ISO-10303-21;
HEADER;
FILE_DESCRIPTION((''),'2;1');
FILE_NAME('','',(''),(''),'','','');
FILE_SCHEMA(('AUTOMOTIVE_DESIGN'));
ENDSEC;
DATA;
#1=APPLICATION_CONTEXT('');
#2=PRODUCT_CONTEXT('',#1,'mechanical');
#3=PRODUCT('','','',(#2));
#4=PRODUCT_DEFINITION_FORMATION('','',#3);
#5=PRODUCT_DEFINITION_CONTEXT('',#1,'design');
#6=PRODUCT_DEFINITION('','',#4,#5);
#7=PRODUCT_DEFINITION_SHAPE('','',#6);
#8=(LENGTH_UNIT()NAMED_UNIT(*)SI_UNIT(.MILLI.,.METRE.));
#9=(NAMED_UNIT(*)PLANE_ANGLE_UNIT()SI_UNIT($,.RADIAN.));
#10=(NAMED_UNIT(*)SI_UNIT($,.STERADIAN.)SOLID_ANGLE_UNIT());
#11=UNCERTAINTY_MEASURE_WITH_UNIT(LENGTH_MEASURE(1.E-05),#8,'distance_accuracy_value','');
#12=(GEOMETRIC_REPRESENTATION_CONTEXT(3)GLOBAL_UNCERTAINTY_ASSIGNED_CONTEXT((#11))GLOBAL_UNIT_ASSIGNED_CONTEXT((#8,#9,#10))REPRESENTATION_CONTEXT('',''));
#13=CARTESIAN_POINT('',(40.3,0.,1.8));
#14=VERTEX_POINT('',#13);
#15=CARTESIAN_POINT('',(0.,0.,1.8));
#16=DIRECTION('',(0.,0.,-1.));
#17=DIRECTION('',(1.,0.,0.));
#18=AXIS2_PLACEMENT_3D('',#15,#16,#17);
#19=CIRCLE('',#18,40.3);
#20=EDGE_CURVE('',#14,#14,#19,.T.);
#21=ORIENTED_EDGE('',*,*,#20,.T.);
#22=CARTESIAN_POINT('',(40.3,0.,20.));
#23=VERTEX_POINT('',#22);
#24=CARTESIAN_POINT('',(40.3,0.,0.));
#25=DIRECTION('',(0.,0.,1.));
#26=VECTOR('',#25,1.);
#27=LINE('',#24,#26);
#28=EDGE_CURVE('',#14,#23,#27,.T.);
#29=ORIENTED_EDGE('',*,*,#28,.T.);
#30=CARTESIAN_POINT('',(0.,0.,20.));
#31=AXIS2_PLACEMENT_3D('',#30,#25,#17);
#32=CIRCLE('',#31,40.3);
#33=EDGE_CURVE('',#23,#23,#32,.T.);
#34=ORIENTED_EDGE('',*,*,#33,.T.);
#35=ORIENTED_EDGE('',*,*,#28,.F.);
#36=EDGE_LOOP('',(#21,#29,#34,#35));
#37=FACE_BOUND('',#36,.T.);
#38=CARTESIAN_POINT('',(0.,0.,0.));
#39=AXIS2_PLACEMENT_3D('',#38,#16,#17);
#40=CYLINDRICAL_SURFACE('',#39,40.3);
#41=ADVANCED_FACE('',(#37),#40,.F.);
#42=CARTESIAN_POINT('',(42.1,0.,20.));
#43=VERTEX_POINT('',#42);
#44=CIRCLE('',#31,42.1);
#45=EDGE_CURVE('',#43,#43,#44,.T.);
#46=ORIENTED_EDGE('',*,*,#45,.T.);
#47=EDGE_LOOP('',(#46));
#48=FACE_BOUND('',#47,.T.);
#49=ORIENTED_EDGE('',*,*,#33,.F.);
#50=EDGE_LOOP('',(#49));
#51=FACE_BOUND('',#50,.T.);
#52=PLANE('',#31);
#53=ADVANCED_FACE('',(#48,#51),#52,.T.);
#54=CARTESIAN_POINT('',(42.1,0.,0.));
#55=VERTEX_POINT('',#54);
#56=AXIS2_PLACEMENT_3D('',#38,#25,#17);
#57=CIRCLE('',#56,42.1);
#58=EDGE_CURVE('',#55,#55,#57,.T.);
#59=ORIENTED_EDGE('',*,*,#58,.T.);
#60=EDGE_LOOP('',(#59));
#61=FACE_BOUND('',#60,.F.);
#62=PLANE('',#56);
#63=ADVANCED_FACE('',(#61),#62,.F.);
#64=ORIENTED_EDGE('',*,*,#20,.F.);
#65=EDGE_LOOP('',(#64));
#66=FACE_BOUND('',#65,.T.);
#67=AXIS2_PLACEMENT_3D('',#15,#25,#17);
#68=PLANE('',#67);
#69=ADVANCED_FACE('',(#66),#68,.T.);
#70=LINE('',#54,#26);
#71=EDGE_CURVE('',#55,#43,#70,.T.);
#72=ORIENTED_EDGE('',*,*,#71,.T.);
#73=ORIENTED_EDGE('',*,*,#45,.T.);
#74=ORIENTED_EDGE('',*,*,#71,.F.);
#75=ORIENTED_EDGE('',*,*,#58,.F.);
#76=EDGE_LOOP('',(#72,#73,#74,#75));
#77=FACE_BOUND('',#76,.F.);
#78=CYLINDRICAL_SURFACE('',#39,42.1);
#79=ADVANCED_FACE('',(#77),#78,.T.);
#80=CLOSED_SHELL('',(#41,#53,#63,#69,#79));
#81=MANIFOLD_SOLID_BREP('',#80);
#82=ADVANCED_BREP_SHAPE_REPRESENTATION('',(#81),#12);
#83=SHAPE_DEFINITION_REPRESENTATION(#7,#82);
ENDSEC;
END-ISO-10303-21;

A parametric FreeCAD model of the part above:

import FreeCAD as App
import Part
import Sketcher
from FreeCAD import Vector
Q = App.Units.Quantity


def faces_at(feature, points):
    """Names of the faces that lie closest to the given points."""
    faces = feature.Shape.Faces
    near = lambda p: min(range(len(faces)), key=lambda i: faces[i].distToShape(Part.Vertex(*p))[0])
    return sorted({f"Face{near(p) + 1}" for p in points})

doc = App.newDocument("Part")
body = doc.addObject("PartDesign::Body", "Body")

# Sketch on XY plane
sketch1 = doc.addObject("Sketcher::SketchObject", "Sketch")
body.addObject(sketch1)
sketch1.AttachmentSupport = (doc.XY_Plane, [""])
sketch1.MapMode = "FlatFace"
sketch1.addGeometry(Part.Circle(Vector(0, 0, 0), Vector(0, 0, 1), 42.1), False)
sketch1.addConstraint([
    Sketcher.Constraint("Coincident", 0, 3, -1, 1),
    Sketcher.Constraint("Diameter", 0, Q("84.2 mm")),
])
pad1 = doc.addObject("PartDesign::Pad", "Pad")
body.addObject(pad1)
pad1.Profile = sketch1
pad1.Length = 20
doc.recompute()

thickness = doc.addObject("PartDesign::Thickness", "Thickness")
body.addObject(thickness)
thickness.Base = (pad1, faces_at(pad1, [(0, 0, 20)]))
thickness.Value = 1.8
thickness.Reversed = True
thickness.Join = "Arc"

doc.recompute()
